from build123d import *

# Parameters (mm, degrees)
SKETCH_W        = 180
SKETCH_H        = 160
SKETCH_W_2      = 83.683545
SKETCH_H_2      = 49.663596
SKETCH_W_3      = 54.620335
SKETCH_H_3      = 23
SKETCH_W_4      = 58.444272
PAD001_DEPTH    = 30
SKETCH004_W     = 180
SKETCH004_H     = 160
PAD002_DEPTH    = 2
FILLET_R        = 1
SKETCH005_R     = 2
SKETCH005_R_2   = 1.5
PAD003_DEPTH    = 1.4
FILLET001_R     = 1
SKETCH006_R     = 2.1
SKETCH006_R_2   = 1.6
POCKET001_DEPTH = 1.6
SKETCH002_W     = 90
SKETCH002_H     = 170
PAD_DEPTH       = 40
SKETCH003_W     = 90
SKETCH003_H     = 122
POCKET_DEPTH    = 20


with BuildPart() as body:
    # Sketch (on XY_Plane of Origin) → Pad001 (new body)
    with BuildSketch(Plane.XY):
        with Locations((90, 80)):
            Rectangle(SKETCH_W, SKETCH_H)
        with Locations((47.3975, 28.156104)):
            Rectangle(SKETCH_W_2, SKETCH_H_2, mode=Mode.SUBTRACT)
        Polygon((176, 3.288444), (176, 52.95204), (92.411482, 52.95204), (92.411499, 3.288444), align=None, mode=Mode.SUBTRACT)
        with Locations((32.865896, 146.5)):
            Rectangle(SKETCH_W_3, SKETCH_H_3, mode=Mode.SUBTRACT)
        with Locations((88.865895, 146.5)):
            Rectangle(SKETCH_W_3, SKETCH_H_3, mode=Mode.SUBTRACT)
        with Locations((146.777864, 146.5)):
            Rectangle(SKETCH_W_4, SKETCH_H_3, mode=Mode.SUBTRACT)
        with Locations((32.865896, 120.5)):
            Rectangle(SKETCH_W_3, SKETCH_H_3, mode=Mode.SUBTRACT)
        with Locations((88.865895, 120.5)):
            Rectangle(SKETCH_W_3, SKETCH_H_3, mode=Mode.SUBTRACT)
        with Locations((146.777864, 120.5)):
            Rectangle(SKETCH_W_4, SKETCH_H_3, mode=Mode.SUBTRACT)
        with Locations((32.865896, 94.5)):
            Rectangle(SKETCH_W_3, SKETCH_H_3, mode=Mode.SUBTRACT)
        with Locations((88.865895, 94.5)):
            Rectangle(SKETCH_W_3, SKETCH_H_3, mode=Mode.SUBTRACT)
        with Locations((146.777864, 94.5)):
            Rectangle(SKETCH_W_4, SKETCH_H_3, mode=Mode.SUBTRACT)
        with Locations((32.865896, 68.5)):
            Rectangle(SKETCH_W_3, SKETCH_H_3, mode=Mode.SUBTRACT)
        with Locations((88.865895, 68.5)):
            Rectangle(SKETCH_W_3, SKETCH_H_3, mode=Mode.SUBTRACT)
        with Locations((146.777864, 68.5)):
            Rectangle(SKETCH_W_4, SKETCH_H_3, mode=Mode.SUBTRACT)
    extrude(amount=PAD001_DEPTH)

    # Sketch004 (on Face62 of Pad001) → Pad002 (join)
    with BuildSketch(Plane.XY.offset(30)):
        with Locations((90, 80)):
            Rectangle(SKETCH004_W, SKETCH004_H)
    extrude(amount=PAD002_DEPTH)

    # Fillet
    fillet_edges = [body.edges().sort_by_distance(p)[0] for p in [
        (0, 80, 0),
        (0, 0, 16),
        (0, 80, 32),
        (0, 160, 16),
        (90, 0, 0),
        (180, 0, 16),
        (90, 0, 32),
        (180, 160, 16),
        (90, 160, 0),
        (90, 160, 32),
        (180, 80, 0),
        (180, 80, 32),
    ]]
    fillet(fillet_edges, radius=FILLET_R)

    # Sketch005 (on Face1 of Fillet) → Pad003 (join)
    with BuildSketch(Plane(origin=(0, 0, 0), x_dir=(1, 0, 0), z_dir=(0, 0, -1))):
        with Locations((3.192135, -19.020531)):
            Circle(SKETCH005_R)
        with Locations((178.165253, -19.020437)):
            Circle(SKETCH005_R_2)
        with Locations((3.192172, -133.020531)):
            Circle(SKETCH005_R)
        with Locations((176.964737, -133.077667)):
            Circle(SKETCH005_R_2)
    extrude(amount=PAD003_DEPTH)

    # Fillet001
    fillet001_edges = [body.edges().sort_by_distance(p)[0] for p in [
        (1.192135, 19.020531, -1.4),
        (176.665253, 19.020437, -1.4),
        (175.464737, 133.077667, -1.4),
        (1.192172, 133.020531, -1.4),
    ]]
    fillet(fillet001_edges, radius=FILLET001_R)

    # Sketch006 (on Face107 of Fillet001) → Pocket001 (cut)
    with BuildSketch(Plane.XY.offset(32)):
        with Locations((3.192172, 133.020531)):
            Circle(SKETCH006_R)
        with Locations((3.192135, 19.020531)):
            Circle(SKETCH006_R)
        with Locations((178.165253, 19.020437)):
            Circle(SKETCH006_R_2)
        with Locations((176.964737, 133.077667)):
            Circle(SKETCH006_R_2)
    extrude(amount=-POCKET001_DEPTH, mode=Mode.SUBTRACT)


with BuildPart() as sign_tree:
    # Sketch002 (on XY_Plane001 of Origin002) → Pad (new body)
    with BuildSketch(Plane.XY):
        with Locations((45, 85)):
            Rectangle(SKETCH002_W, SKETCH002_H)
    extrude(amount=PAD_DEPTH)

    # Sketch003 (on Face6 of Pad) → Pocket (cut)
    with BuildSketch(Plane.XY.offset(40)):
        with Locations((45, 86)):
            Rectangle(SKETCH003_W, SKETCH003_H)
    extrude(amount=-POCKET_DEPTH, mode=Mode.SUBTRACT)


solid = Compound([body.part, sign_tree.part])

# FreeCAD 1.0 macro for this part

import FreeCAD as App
import Part
import Sketcher
Q = App.Units.Quantity


def edges_at(feature, points):
    """Names of the edges that pass closest to the given points."""
    edges = feature.Shape.Edges
    near = lambda p: min(range(len(edges)), key=lambda i: edges[i].distToShape(Part.Vertex(*p))[0])
    return sorted({f"Edge{near(p) + 1}" for p in points})

doc = App.newDocument("Part")
body = doc.addObject("PartDesign::Body", "Body")

sketch1 = body.newObject("Sketcher::SketchObject", "Sketch")
sketch1.AttachmentSupport = (doc.getObject("XY_Plane"), [""])
sketch1.MapMode = "FlatFace"
sketch1.addGeometry(Part.LineSegment(App.Vector(0, 160, 0), App.Vector(0, 0, 0)), False)
sketch1.addGeometry(Part.LineSegment(App.Vector(0, 0, 0), App.Vector(180, 0, 0)), False)
sketch1.addGeometry(Part.LineSegment(App.Vector(180, 0, 0), App.Vector(180, 160, 0)), False)
sketch1.addGeometry(Part.LineSegment(App.Vector(180, 160, 0), App.Vector(0, 160, 0)), False)
sketch1.addGeometry(Part.LineSegment(App.Vector(89, 3, 0), App.Vector(6, 3, 0)), False)
sketch1.addGeometry(Part.LineSegment(App.Vector(6, 3, 0), App.Vector(6, 53, 0)), False)
sketch1.addGeometry(Part.LineSegment(App.Vector(6, 53, 0), App.Vector(89, 53, 0)), False)
sketch1.addGeometry(Part.LineSegment(App.Vector(89, 53, 0), App.Vector(89, 3, 0)), False)
sketch1.addGeometry(Part.LineSegment(App.Vector(60, 57, 0), App.Vector(6, 57, 0)), False)
sketch1.addGeometry(Part.LineSegment(App.Vector(6, 57, 0), App.Vector(6, 80, 0)), False)
sketch1.addGeometry(Part.LineSegment(App.Vector(6, 80, 0), App.Vector(60, 80, 0)), False)
sketch1.addGeometry(Part.LineSegment(App.Vector(60, 80, 0), App.Vector(60, 57, 0)), False)
sketch1.addGeometry(Part.LineSegment(App.Vector(116, 57, 0), App.Vector(62, 57, 0)), False)
sketch1.addGeometry(Part.LineSegment(App.Vector(62, 57, 0), App.Vector(62, 80, 0)), False)
sketch1.addGeometry(Part.LineSegment(App.Vector(62, 80, 0), App.Vector(116, 80, 0)), False)
sketch1.addGeometry(Part.LineSegment(App.Vector(116, 80, 0), App.Vector(116, 57, 0)), False)
sketch1.addGeometry(Part.LineSegment(App.Vector(176, 53, 0), App.Vector(176, 3, 0)), False)
sketch1.addGeometry(Part.LineSegment(App.Vector(176, 3, 0), App.Vector(92, 3, 0)), False)
sketch1.addGeometry(Part.LineSegment(App.Vector(92, 3, 0), App.Vector(92, 53, 0)), False)
sketch1.addGeometry(Part.LineSegment(App.Vector(92, 53, 0), App.Vector(176, 53, 0)), False)
sketch1.addGeometry(Part.LineSegment(App.Vector(176, 57, 0), App.Vector(118, 57, 0)), False)
sketch1.addGeometry(Part.LineSegment(App.Vector(118, 57, 0), App.Vector(118, 80, 0)), False)
sketch1.addGeometry(Part.LineSegment(App.Vector(118, 80, 0), App.Vector(176, 80, 0)), False)
sketch1.addGeometry(Part.LineSegment(App.Vector(176, 80, 0), App.Vector(176, 57, 0)), False)
sketch1.addGeometry(Part.LineSegment(App.Vector(60, 83, 0), App.Vector(6, 83, 0)), False)
sketch1.addGeometry(Part.LineSegment(App.Vector(6, 83, 0), App.Vector(6, 106, 0)), False)
sketch1.addGeometry(Part.LineSegment(App.Vector(6, 106, 0), App.Vector(60, 106, 0)), False)
sketch1.addGeometry(Part.LineSegment(App.Vector(60, 106, 0), App.Vector(60, 83, 0)), False)
sketch1.addGeometry(Part.LineSegment(App.Vector(116, 83, 0), App.Vector(62, 83, 0)), False)
sketch1.addGeometry(Part.LineSegment(App.Vector(62, 83, 0), App.Vector(62, 106, 0)), False)
sketch1.addGeometry(Part.LineSegment(App.Vector(62, 106, 0), App.Vector(116, 106, 0)), False)
sketch1.addGeometry(Part.LineSegment(App.Vector(116, 106, 0), App.Vector(116, 83, 0)), False)
sketch1.addGeometry(Part.LineSegment(App.Vector(60, 109, 0), App.Vector(6, 109, 0)), False)
sketch1.addGeometry(Part.LineSegment(App.Vector(6, 109, 0), App.Vector(6, 132, 0)), False)
sketch1.addGeometry(Part.LineSegment(App.Vector(6, 132, 0), App.Vector(60, 132, 0)), False)
sketch1.addGeometry(Part.LineSegment(App.Vector(60, 132, 0), App.Vector(60, 109, 0)), False)
sketch1.addGeometry(Part.LineSegment(App.Vector(60, 135, 0), App.Vector(6, 135, 0)), False)
sketch1.addGeometry(Part.LineSegment(App.Vector(6, 135, 0), App.Vector(6, 158, 0)), False)
sketch1.addGeometry(Part.LineSegment(App.Vector(6, 158, 0), App.Vector(60, 158, 0)), False)
sketch1.addGeometry(Part.LineSegment(App.Vector(60, 158, 0), App.Vector(60, 135, 0)), False)
sketch1.addGeometry(Part.LineSegment(App.Vector(116, 109, 0), App.Vector(62, 109, 0)), False)
sketch1.addGeometry(Part.LineSegment(App.Vector(62, 109, 0), App.Vector(62, 132, 0)), False)
sketch1.addGeometry(Part.LineSegment(App.Vector(62, 132, 0), App.Vector(116, 132, 0)), False)
sketch1.addGeometry(Part.LineSegment(App.Vector(116, 132, 0), App.Vector(116, 109, 0)), False)
sketch1.addGeometry(Part.LineSegment(App.Vector(116, 135, 0), App.Vector(62, 135, 0)), False)
sketch1.addGeometry(Part.LineSegment(App.Vector(62, 135, 0), App.Vector(62, 158, 0)), False)
sketch1.addGeometry(Part.LineSegment(App.Vector(62, 158, 0), App.Vector(116, 158, 0)), False)
sketch1.addGeometry(Part.LineSegment(App.Vector(116, 158, 0), App.Vector(116, 135, 0)), False)
sketch1.addGeometry(Part.LineSegment(App.Vector(176, 83, 0), App.Vector(118, 83, 0)), False)
sketch1.addGeometry(Part.LineSegment(App.Vector(118, 83, 0), App.Vector(118, 106, 0)), False)
sketch1.addGeometry(Part.LineSegment(App.Vector(118, 106, 0), App.Vector(176, 106, 0)), False)
sketch1.addGeometry(Part.LineSegment(App.Vector(176, 106, 0), App.Vector(176, 83, 0)), False)
sketch1.addGeometry(Part.LineSegment(App.Vector(176, 109, 0), App.Vector(118, 109, 0)), False)
sketch1.addGeometry(Part.LineSegment(App.Vector(118, 109, 0), App.Vector(118, 132, 0)), False)
sketch1.addGeometry(Part.LineSegment(App.Vector(118, 132, 0), App.Vector(176, 132, 0)), False)
sketch1.addGeometry(Part.LineSegment(App.Vector(176, 132, 0), App.Vector(176, 109, 0)), False)
sketch1.addGeometry(Part.LineSegment(App.Vector(176, 135, 0), App.Vector(118, 135, 0)), False)
sketch1.addGeometry(Part.LineSegment(App.Vector(118, 135, 0), App.Vector(118, 158, 0)), False)
sketch1.addGeometry(Part.LineSegment(App.Vector(118, 158, 0), App.Vector(176, 158, 0)), False)
sketch1.addGeometry(Part.LineSegment(App.Vector(176, 158, 0), App.Vector(176, 135, 0)), False)
sketch1.addConstraint(Sketcher.Constraint("Coincident", 0, 2, 1, 1))
sketch1.addConstraint(Sketcher.Constraint("Coincident", 1, 2, 2, 1))
sketch1.addConstraint(Sketcher.Constraint("Coincident", 2, 2, 3, 1))
sketch1.addConstraint(Sketcher.Constraint("Coincident", 3, 2, 0, 1))
sketch1.addConstraint(Sketcher.Constraint("Coincident", 4, 2, 5, 1))
sketch1.addConstraint(Sketcher.Constraint("Coincident", 5, 2, 6, 1))
sketch1.addConstraint(Sketcher.Constraint("Coincident", 6, 2, 7, 1))
sketch1.addConstraint(Sketcher.Constraint("Coincident", 7, 2, 4, 1))
sketch1.addConstraint(Sketcher.Constraint("Coincident", 8, 2, 9, 1))
sketch1.addConstraint(Sketcher.Constraint("Coincident", 9, 2, 10, 1))
sketch1.addConstraint(Sketcher.Constraint("Coincident", 10, 2, 11, 1))
sketch1.addConstraint(Sketcher.Constraint("Coincident", 11, 2, 8, 1))
sketch1.addConstraint(Sketcher.Constraint("Coincident", 12, 2, 13, 1))
sketch1.addConstraint(Sketcher.Constraint("Coincident", 13, 2, 14, 1))
sketch1.addConstraint(Sketcher.Constraint("Coincident", 14, 2, 15, 1))
sketch1.addConstraint(Sketcher.Constraint("Coincident", 15, 2, 12, 1))
sketch1.addConstraint(Sketcher.Constraint("Coincident", 16, 2, 17, 1))
sketch1.addConstraint(Sketcher.Constraint("Coincident", 17, 2, 18, 1))
sketch1.addConstraint(Sketcher.Constraint("Coincident", 18, 2, 19, 1))
sketch1.addConstraint(Sketcher.Constraint("Coincident", 19, 2, 16, 1))
sketch1.addConstraint(Sketcher.Constraint("Coincident", 20, 2, 21, 1))
sketch1.addConstraint(Sketcher.Constraint("Coincident", 21, 2, 22, 1))
sketch1.addConstraint(Sketcher.Constraint("Coincident", 22, 2, 23, 1))
sketch1.addConstraint(Sketcher.Constraint("Coincident", 23, 2, 20, 1))
sketch1.addConstraint(Sketcher.Constraint("Coincident", 24, 2, 25, 1))
sketch1.addConstraint(Sketcher.Constraint("Coincident", 25, 2, 26, 1))
sketch1.addConstraint(Sketcher.Constraint("Coincident", 26, 2, 27, 1))
sketch1.addConstraint(Sketcher.Constraint("Coincident", 27, 2, 24, 1))
sketch1.addConstraint(Sketcher.Constraint("Coincident", 28, 2, 29, 1))
sketch1.addConstraint(Sketcher.Constraint("Coincident", 29, 2, 30, 1))
sketch1.addConstraint(Sketcher.Constraint("Coincident", 30, 2, 31, 1))
sketch1.addConstraint(Sketcher.Constraint("Coincident", 31, 2, 28, 1))
sketch1.addConstraint(Sketcher.Constraint("Coincident", 32, 2, 33, 1))
sketch1.addConstraint(Sketcher.Constraint("Coincident", 33, 2, 34, 1))
sketch1.addConstraint(Sketcher.Constraint("Coincident", 34, 2, 35, 1))
sketch1.addConstraint(Sketcher.Constraint("Coincident", 35, 2, 32, 1))
sketch1.addConstraint(Sketcher.Constraint("Coincident", 36, 2, 37, 1))
sketch1.addConstraint(Sketcher.Constraint("Coincident", 37, 2, 38, 1))
sketch1.addConstraint(Sketcher.Constraint("Coincident", 38, 2, 39, 1))
sketch1.addConstraint(Sketcher.Constraint("Coincident", 39, 2, 36, 1))
sketch1.addConstraint(Sketcher.Constraint("Coincident", 40, 2, 41, 1))
sketch1.addConstraint(Sketcher.Constraint("Coincident", 41, 2, 42, 1))
sketch1.addConstraint(Sketcher.Constraint("Coincident", 42, 2, 43, 1))
sketch1.addConstraint(Sketcher.Constraint("Coincident", 43, 2, 40, 1))
sketch1.addConstraint(Sketcher.Constraint("Coincident", 44, 2, 45, 1))
sketch1.addConstraint(Sketcher.Constraint("Coincident", 45, 2, 46, 1))
sketch1.addConstraint(Sketcher.Constraint("Coincident", 46, 2, 47, 1))
sketch1.addConstraint(Sketcher.Constraint("Coincident", 47, 2, 44, 1))
sketch1.addConstraint(Sketcher.Constraint("Coincident", 48, 2, 49, 1))
sketch1.addConstraint(Sketcher.Constraint("Coincident", 49, 2, 50, 1))
sketch1.addConstraint(Sketcher.Constraint("Coincident", 50, 2, 51, 1))
sketch1.addConstraint(Sketcher.Constraint("Coincident", 51, 2, 48, 1))
sketch1.addConstraint(Sketcher.Constraint("Coincident", 52, 2, 53, 1))
sketch1.addConstraint(Sketcher.Constraint("Coincident", 53, 2, 54, 1))
sketch1.addConstraint(Sketcher.Constraint("Coincident", 54, 2, 55, 1))
sketch1.addConstraint(Sketcher.Constraint("Coincident", 55, 2, 52, 1))
sketch1.addConstraint(Sketcher.Constraint("Coincident", 56, 2, 57, 1))
sketch1.addConstraint(Sketcher.Constraint("Coincident", 57, 2, 58, 1))
sketch1.addConstraint(Sketcher.Constraint("Coincident", 58, 2, 59, 1))
sketch1.addConstraint(Sketcher.Constraint("Coincident", 59, 2, 56, 1))
sketch1.addConstraint(Sketcher.Constraint("Vertical", 0))
sketch1.addConstraint(Sketcher.Constraint("Horizontal", 1))
sketch1.addConstraint(Sketcher.Constraint("Vertical", 2))
sketch1.addConstraint(Sketcher.Constraint("Horizontal", 3))
sketch1.addConstraint(Sketcher.Constraint("Horizontal", 4))
sketch1.addConstraint(Sketcher.Constraint("Vertical", 5))
sketch1.addConstraint(Sketcher.Constraint("Horizontal", 6))
sketch1.addConstraint(Sketcher.Constraint("Vertical", 7))
sketch1.addConstraint(Sketcher.Constraint("Horizontal", 8))
sketch1.addConstraint(Sketcher.Constraint("Vertical", 9))
sketch1.addConstraint(Sketcher.Constraint("Horizontal", 10))
sketch1.addConstraint(Sketcher.Constraint("Vertical", 11))
sketch1.addConstraint(Sketcher.Constraint("Horizontal", 12))
sketch1.addConstraint(Sketcher.Constraint("Vertical", 13))
sketch1.addConstraint(Sketcher.Constraint("Horizontal", 14))
sketch1.addConstraint(Sketcher.Constraint("Vertical", 15))
sketch1.addConstraint(Sketcher.Constraint("Vertical", 16))
sketch1.addConstraint(Sketcher.Constraint("Horizontal", 17))
sketch1.addConstraint(Sketcher.Constraint("Horizontal", 19))
sketch1.addConstraint(Sketcher.Constraint("Horizontal", 20))
sketch1.addConstraint(Sketcher.Constraint("Vertical", 21))
sketch1.addConstraint(Sketcher.Constraint("Horizontal", 22))
sketch1.addConstraint(Sketcher.Constraint("Vertical", 23))
sketch1.addConstraint(Sketcher.Constraint("Horizontal", 24))
sketch1.addConstraint(Sketcher.Constraint("Vertical", 25))
sketch1.addConstraint(Sketcher.Constraint("Horizontal", 26))
sketch1.addConstraint(Sketcher.Constraint("Vertical", 27))
sketch1.addConstraint(Sketcher.Constraint("Horizontal", 28))
sketch1.addConstraint(Sketcher.Constraint("Vertical", 29))
sketch1.addConstraint(Sketcher.Constraint("Horizontal", 30))
sketch1.addConstraint(Sketcher.Constraint("Vertical", 31))
sketch1.addConstraint(Sketcher.Constraint("Horizontal", 32))
sketch1.addConstraint(Sketcher.Constraint("Vertical", 33))
sketch1.addConstraint(Sketcher.Constraint("Horizontal", 34))
sketch1.addConstraint(Sketcher.Constraint("Vertical", 35))
sketch1.addConstraint(Sketcher.Constraint("Horizontal", 36))
sketch1.addConstraint(Sketcher.Constraint("Vertical", 37))
sketch1.addConstraint(Sketcher.Constraint("Horizontal", 38))
sketch1.addConstraint(Sketcher.Constraint("Vertical", 39))
sketch1.addConstraint(Sketcher.Constraint("Horizontal", 40))
sketch1.addConstraint(Sketcher.Constraint("Vertical", 41))
sketch1.addConstraint(Sketcher.Constraint("Horizontal", 42))
sketch1.addConstraint(Sketcher.Constraint("Vertical", 43))
sketch1.addConstraint(Sketcher.Constraint("Horizontal", 44))
sketch1.addConstraint(Sketcher.Constraint("Vertical", 45))
sketch1.addConstraint(Sketcher.Constraint("Horizontal", 46))
sketch1.addConstraint(Sketcher.Constraint("Vertical", 47))
sketch1.addConstraint(Sketcher.Constraint("Horizontal", 48))
sketch1.addConstraint(Sketcher.Constraint("Vertical", 49))
sketch1.addConstraint(Sketcher.Constraint("Horizontal", 50))
sketch1.addConstraint(Sketcher.Constraint("Vertical", 51))
sketch1.addConstraint(Sketcher.Constraint("Horizontal", 52))
sketch1.addConstraint(Sketcher.Constraint("Vertical", 53))
sketch1.addConstraint(Sketcher.Constraint("Horizontal", 54))
sketch1.addConstraint(Sketcher.Constraint("Vertical", 55))
sketch1.addConstraint(Sketcher.Constraint("Horizontal", 56))
sketch1.addConstraint(Sketcher.Constraint("Vertical", 57))
sketch1.addConstraint(Sketcher.Constraint("Horizontal", 58))
sketch1.addConstraint(Sketcher.Constraint("Vertical", 59))
sketch1.addConstraint(Sketcher.Constraint("Coincident", 0, 2, -1, 1))
sketch1.addConstraint(Sketcher.Constraint("Horizontal", 11, 2, 12, 2))
sketch1.addConstraint(Sketcher.Constraint("Horizontal", 10, 2, 13, 2))
sketch1.addConstraint(Sketcher.Constraint("Horizontal", 15, 2, 20, 2))
sketch1.addConstraint(Sketcher.Constraint("Horizontal", 14, 2, 21, 2))
sketch1.addConstraint(Sketcher.Constraint("Horizontal", 27, 2, 28, 2))
sketch1.addConstraint(Sketcher.Constraint("Horizontal", 26, 2, 29, 2))
sketch1.addConstraint(Sketcher.Constraint("Horizontal", 35, 2, 40, 2))
sketch1.addConstraint(Sketcher.Constraint("Horizontal", 34, 2, 41, 2))
sketch1.addConstraint(Sketcher.Constraint("Horizontal", 39, 2, 44, 2))
sketch1.addConstraint(Sketcher.Constraint("Horizontal", 38, 2, 45, 2))
sketch1.addConstraint(Sketcher.Constraint("Horizontal", 31, 2, 48, 2))
sketch1.addConstraint(Sketcher.Constraint("Horizontal", 30, 2, 49, 2))
sketch1.addConstraint(Sketcher.Constraint("Horizontal", 43, 2, 52, 2))
sketch1.addConstraint(Sketcher.Constraint("Horizontal", 42, 2, 53, 2))
sketch1.addConstraint(Sketcher.Constraint("Horizontal", 47, 2, 56, 2))
sketch1.addConstraint(Sketcher.Constraint("Horizontal", 46, 2, 57, 2))
sketch1.addConstraint(Sketcher.Constraint("Vertical", 5, 2, 8, 2))
sketch1.addConstraint(Sketcher.Constraint("Vertical", 19, 2, 22, 2))
sketch1.addConstraint(Sketcher.Constraint("Vertical", 9, 2, 24, 2))
sketch1.addConstraint(Sketcher.Constraint("Vertical", 11, 2, 26, 2))
sketch1.addConstraint(Sketcher.Constraint("Vertical", 13, 2, 28, 2))
sketch1.addConstraint(Sketcher.Constraint("Vertical", 15, 2, 30, 2))
sketch1.addConstraint(Sketcher.Constraint("Vertical", 25, 2, 32, 2))
sketch1.addConstraint(Sketcher.Constraint("Vertical", 27, 2, 34, 2))
sketch1.addConstraint(Sketcher.Constraint("Vertical", 33, 2, 36, 2))
sketch1.addConstraint(Sketcher.Constraint("Vertical", 35, 2, 38, 2))
sketch1.addConstraint(Sketcher.Constraint("Vertical", 29, 2, 40, 2))
sketch1.addConstraint(Sketcher.Constraint("Vertical", 31, 2, 42, 2))
sketch1.addConstraint(Sketcher.Constraint("Vertical", 41, 2, 44, 2))
sketch1.addConstraint(Sketcher.Constraint("Vertical", 43, 2, 46, 2))
sketch1.addConstraint(Sketcher.Constraint("Vertical", 21, 2, 48, 2))
sketch1.addConstraint(Sketcher.Constraint("Vertical", 23, 2, 50, 2))
sketch1.addConstraint(Sketcher.Constraint("Vertical", 49, 2, 52, 2))
sketch1.addConstraint(Sketcher.Constraint("Vertical", 51, 2, 54, 2))
sketch1.addConstraint(Sketcher.Constraint("Vertical", 53, 2, 56, 2))
sketch1.addConstraint(Sketcher.Constraint("Vertical", 55, 2, 58, 2))
sketch1.addConstraint(Sketcher.Constraint("Equal", 10, 12))
sketch1.addConstraint(Sketcher.Constraint("Equal", 7, 16))
sketch1.addConstraint(Sketcher.Constraint("Equal", 23, 25))
sketch1.addConstraint(Sketcher.Constraint("Equal", 31, 33))
sketch1.addConstraint(Sketcher.Constraint("Equal", 35, 37))
sketch1.addConstraint(Sketcher.Constraint("DistanceX", 1, 1, 1, 2, 180.0))
sketch1.addConstraint(Sketcher.Constraint("DistanceY", 0, 2, 0, 1, 160.0))
sketch1.addConstraint(Sketcher.Constraint("DistanceY", 9, 1, 9, 2, 23.0))
sketch1.addConstraint(Sketcher.Constraint("Angle", 18, Q("90.00002 deg")))
sketch1.addConstraint(Sketcher.Constraint("DistanceY", -1, 1, 8, 2, 57.0))
sketch1.addConstraint(Sketcher.Constraint("DistanceX", -1, 1, 16, 2, 176.0))
sketch1.addConstraint(Sketcher.Constraint("DistanceY", -1, 1, 24, 2, 83.0))
sketch1.addConstraint(Sketcher.Constraint("DistanceY", -1, 1, 32, 2, 109.0))
sketch1.addConstraint(Sketcher.Constraint("DistanceY", -1, 1, 36, 2, 135.0))
sketch1.addConstraint(Sketcher.Constraint("DistanceX", 8, 2, 12, 2, 55.999999))
sketch1.addConstraint(Sketcher.Constraint("DistanceX", 12, 2, 20, 2, 56.0))
sketch1.addConstraint(Sketcher.Constraint("DistanceX", 17, 2, 17, 1, 83.588501))
sketch1.addConstraint(Sketcher.Constraint("DistanceX", 20, 2, 20, 1, 58.444272))
sketch1.addConstraint(Sketcher.Constraint("DistanceY", -1, 1, 5, 2, 52.987902))
sketch1.addConstraint(Sketcher.Constraint("DistanceX", 4, 2, 4, 1, 83.683545))
sketch1.addConstraint(Sketcher.Constraint("DistanceX", 8, 2, 8, 1, 54.620335))
sketch1.addConstraint(Sketcher.Constraint("DistanceY", 5, 1, 5, 2, 49.663596))
sketch1.addConstraint(Sketcher.Constraint("DistanceY", -1, 1, 18, 2, 52.95204))
pad1 = body.newObject("PartDesign::Pad", "Pad")
pad1.Profile = sketch1
pad1.Length = 30

sketch2 = body.newObject("Sketcher::SketchObject", "Sketch001")
sketch2.AttachmentSupport = (doc.getObject("XY_Plane"), [""])
sketch2.MapMode = "FlatFace"
sketch2.AttachmentOffset = App.Placement(App.Vector(0, 0, 30), App.Rotation())
sketch2.addGeometry(Part.LineSegment(App.Vector(0, 160, 0), App.Vector(0, 0, 0)), False)
sketch2.addGeometry(Part.LineSegment(App.Vector(0, 0, 0), App.Vector(180, 0, 0)), False)
sketch2.addGeometry(Part.LineSegment(App.Vector(180, 0, 0), App.Vector(180, 160, 0)), False)
sketch2.addGeometry(Part.LineSegment(App.Vector(180, 160, 0), App.Vector(0, 160, 0)), False)
sketch2.addConstraint(Sketcher.Constraint("Coincident", 0, 2, 1, 1))
sketch2.addConstraint(Sketcher.Constraint("Coincident", 1, 2, 2, 1))
sketch2.addConstraint(Sketcher.Constraint("Coincident", 2, 2, 3, 1))
sketch2.addConstraint(Sketcher.Constraint("Coincident", 3, 2, 0, 1))
sketch2.addConstraint(Sketcher.Constraint("Vertical", 0))
sketch2.addConstraint(Sketcher.Constraint("Horizontal", 1))
sketch2.addConstraint(Sketcher.Constraint("Vertical", 2))
sketch2.addConstraint(Sketcher.Constraint("Horizontal", 3))
sketch2.addConstraint(Sketcher.Constraint("Coincident", 0, 2, -1, 1))
sketch2.addConstraint(Sketcher.Constraint("DistanceX", 1, 1, 1, 2, 180.0))
sketch2.addConstraint(Sketcher.Constraint("DistanceY", 0, 2, 0, 1, 160.0))
pad2 = body.newObject("PartDesign::Pad", "Pad001")
pad2.Profile = sketch2
pad2.Length = 2
doc.recompute()

fillet = body.newObject("PartDesign::Fillet", "Fillet")
fillet.Base = (pad2, edges_at(pad2, [
    (0, 80, 0),
    (0, 0, 16),
    (0, 80, 32),
    (0, 160, 16),
    (90, 0, 0),
    (180, 0, 16),
    (90, 0, 32),
    (180, 160, 16),
    (90, 160, 0),
    (90, 160, 32),
    (180, 80, 0),
    (180, 80, 32),
]))
fillet.Radius = 1

sketch3 = body.newObject("Sketcher::SketchObject", "Sketch002")
sketch3.AttachmentSupport = (doc.getObject("XY_Plane"), [""])
sketch3.MapMode = "FlatFace"
sketch3.addGeometry(Part.Circle(App.Vector(3.2, 19, 0), App.Vector(0, 0, 1), 2), False)
sketch3.addGeometry(Part.Circle(App.Vector(178.2, 19, 0), App.Vector(0, 0, 1), 1.5), False)
sketch3.addGeometry(Part.Circle(App.Vector(3.2, 133, 0), App.Vector(0, 0, 1), 2), False)
sketch3.addGeometry(Part.Circle(App.Vector(177, 133.1, 0), App.Vector(0, 0, 1), 1.5), False)
sketch3.addConstraint(Sketcher.Constraint("Equal", 0, 2))
sketch3.addConstraint(Sketcher.Constraint("Equal", 1, 3))
sketch3.addConstraint(Sketcher.Constraint("Diameter", 0, 4.0))
sketch3.addConstraint(Sketcher.Constraint("Diameter", 1, 3.0))
sketch3.addConstraint(Sketcher.Constraint("DistanceY", 0, 3, 2, 3, 114.0))
sketch3.addConstraint(Sketcher.Constraint("DistanceX", 0, 3, 3, 3, 173.772602))
sketch3.addConstraint(Sketcher.Constraint("DistanceY", -1, 1, 0, 3, 19.020531))
sketch3.addConstraint(Sketcher.Constraint("DistanceX", -1, 1, 2, 3, 3.192172))
sketch3.addConstraint(Sketcher.Constraint("DistanceX", 0, 3, 1, 3, 174.973118))
sketch3.addConstraint(Sketcher.Constraint("DistanceX", 2, 3, 1, 3, 174.973081))
sketch3.addConstraint(Sketcher.Constraint("DistanceY", 1, 3, 3, 3, 114.05723))
sketch3.addConstraint(Sketcher.Constraint("DistanceY", -1, 1, 1, 3, 19.020437))
pad3 = body.newObject("PartDesign::Pad", "Pad002")
pad3.Profile = sketch3
pad3.Length = 1.4
pad3.Reversed = True
doc.recompute()

fillet2 = body.newObject("PartDesign::Fillet", "Fillet001")
fillet2.Base = (pad3, edges_at(pad3, [
    (1.192, 19.021, -1.4),
    (176.665, 19.02, -1.4),
    (175.465, 133.078, -1.4),
    (1.192, 133.021, -1.4),
]))
fillet2.Radius = 1

sketch4 = body.newObject("Sketcher::SketchObject", "Sketch003")
sketch4.AttachmentSupport = (doc.getObject("XY_Plane"), [""])
sketch4.MapMode = "FlatFace"
sketch4.AttachmentOffset = App.Placement(App.Vector(0, 0, 32), App.Rotation())
sketch4.addGeometry(Part.Circle(App.Vector(3.2, 133, 0), App.Vector(0, 0, 1), 2.1), False)
sketch4.addGeometry(Part.Circle(App.Vector(3.2, 19, 0), App.Vector(0, 0, 1), 2.1), False)
sketch4.addGeometry(Part.Circle(App.Vector(178.2, 19, 0), App.Vector(0, 0, 1), 1.6), False)
sketch4.addGeometry(Part.Circle(App.Vector(177, 133.1, 0), App.Vector(0, 0, 1), 1.6), False)
sketch4.addConstraint(Sketcher.Constraint("Equal", 0, 1))
sketch4.addConstraint(Sketcher.Constraint("Equal", 2, 3))
sketch4.addConstraint(Sketcher.Constraint("Diameter", 0, 4.2))
sketch4.addConstraint(Sketcher.Constraint("Diameter", 2, 3.2))
sketch4.addConstraint(Sketcher.Constraint("DistanceY", 1, 3, 0, 3, 114.0))
sketch4.addConstraint(Sketcher.Constraint("DistanceX", 1, 3, 3, 3, 173.772602))
sketch4.addConstraint(Sketcher.Constraint("DistanceX", -1, 1, 0, 3, 3.192172))
sketch4.addConstraint(Sketcher.Constraint("DistanceY", -1, 1, 0, 3, 133.020531))
sketch4.addConstraint(Sketcher.Constraint("DistanceX", 1, 3, 2, 3, 174.973118))
sketch4.addConstraint(Sketcher.Constraint("DistanceX", 0, 3, 2, 3, 174.973081))
sketch4.addConstraint(Sketcher.Constraint("DistanceY", 2, 3, 3, 3, 114.05723))
sketch4.addConstraint(Sketcher.Constraint("DistanceY", -1, 1, 2, 3, 19.020437))
pocket1 = body.newObject("PartDesign::Pocket", "Pocket")
pocket1.Profile = sketch4
pocket1.Length = 1.6
body2 = doc.addObject("PartDesign::Body", "Body001")

sketch5 = body2.newObject("Sketcher::SketchObject", "Sketch004")
sketch5.AttachmentSupport = (doc.getObject("XY_Plane001"), [""])
sketch5.MapMode = "FlatFace"
sketch5.addGeometry(Part.LineSegment(App.Vector(0, 170, 0), App.Vector(0, 0, 0)), False)
sketch5.addGeometry(Part.LineSegment(App.Vector(0, 0, 0), App.Vector(90, 0, 0)), False)
sketch5.addGeometry(Part.LineSegment(App.Vector(90, 0, 0), App.Vector(90, 170, 0)), False)
sketch5.addGeometry(Part.LineSegment(App.Vector(90, 170, 0), App.Vector(0, 170, 0)), False)
sketch5.addConstraint(Sketcher.Constraint("Coincident", 0, 2, 1, 1))
sketch5.addConstraint(Sketcher.Constraint("Coincident", 1, 2, 2, 1))
sketch5.addConstraint(Sketcher.Constraint("Coincident", 2, 2, 3, 1))
sketch5.addConstraint(Sketcher.Constraint("Coincident", 3, 2, 0, 1))
sketch5.addConstraint(Sketcher.Constraint("Vertical", 0))
sketch5.addConstraint(Sketcher.Constraint("Horizontal", 1))
sketch5.addConstraint(Sketcher.Constraint("Vertical", 2))
sketch5.addConstraint(Sketcher.Constraint("Horizontal", 3))
sketch5.addConstraint(Sketcher.Constraint("Coincident", 0, 2, -1, 1))
sketch5.addConstraint(Sketcher.Constraint("DistanceX", 1, 1, 1, 2, 90.0))
sketch5.addConstraint(Sketcher.Constraint("DistanceY", 0, 2, 0, 1, 170.0))
pad4 = body2.newObject("PartDesign::Pad", "Pad003")
pad4.Profile = sketch5
pad4.Length = 40

sketch6 = body2.newObject("Sketcher::SketchObject", "Sketch005")
sketch6.AttachmentSupport = (doc.getObject("XY_Plane001"), [""])
sketch6.MapMode = "FlatFace"
sketch6.AttachmentOffset = App.Placement(App.Vector(0, 0, 40), App.Rotation())
sketch6.addGeometry(Part.LineSegment(App.Vector(0, 147, 0), App.Vector(0, 25, 0)), False)
sketch6.addGeometry(Part.LineSegment(App.Vector(0, 25, 0), App.Vector(90, 25, 0)), False)
sketch6.addGeometry(Part.LineSegment(App.Vector(90, 25, 0), App.Vector(90, 147, 0)), False)
sketch6.addGeometry(Part.LineSegment(App.Vector(90, 147, 0), App.Vector(0, 147, 0)), False)
sketch6.addConstraint(Sketcher.Constraint("Coincident", 0, 2, 1, 1))
sketch6.addConstraint(Sketcher.Constraint("Coincident", 1, 2, 2, 1))
sketch6.addConstraint(Sketcher.Constraint("Coincident", 2, 2, 3, 1))
sketch6.addConstraint(Sketcher.Constraint("Coincident", 3, 2, 0, 1))
sketch6.addConstraint(Sketcher.Constraint("Vertical", 0))
sketch6.addConstraint(Sketcher.Constraint("Horizontal", 1))
sketch6.addConstraint(Sketcher.Constraint("Vertical", 2))
sketch6.addConstraint(Sketcher.Constraint("Horizontal", 3))
sketch6.addConstraint(Sketcher.Constraint("PointOnObject", 0, 2, -2))
sketch6.addConstraint(Sketcher.Constraint("DistanceX", 1, 1, 1, 2, 90.0))
sketch6.addConstraint(Sketcher.Constraint("DistanceY", 0, 2, 0, 1, 122.0))
sketch6.addConstraint(Sketcher.Constraint("DistanceY", -1, 1, 0, 2, 25.0))
pocket2 = body2.newObject("PartDesign::Pocket", "Pocket001")
pocket2.Profile = sketch6
pocket2.Length = 20

doc.recompute()
